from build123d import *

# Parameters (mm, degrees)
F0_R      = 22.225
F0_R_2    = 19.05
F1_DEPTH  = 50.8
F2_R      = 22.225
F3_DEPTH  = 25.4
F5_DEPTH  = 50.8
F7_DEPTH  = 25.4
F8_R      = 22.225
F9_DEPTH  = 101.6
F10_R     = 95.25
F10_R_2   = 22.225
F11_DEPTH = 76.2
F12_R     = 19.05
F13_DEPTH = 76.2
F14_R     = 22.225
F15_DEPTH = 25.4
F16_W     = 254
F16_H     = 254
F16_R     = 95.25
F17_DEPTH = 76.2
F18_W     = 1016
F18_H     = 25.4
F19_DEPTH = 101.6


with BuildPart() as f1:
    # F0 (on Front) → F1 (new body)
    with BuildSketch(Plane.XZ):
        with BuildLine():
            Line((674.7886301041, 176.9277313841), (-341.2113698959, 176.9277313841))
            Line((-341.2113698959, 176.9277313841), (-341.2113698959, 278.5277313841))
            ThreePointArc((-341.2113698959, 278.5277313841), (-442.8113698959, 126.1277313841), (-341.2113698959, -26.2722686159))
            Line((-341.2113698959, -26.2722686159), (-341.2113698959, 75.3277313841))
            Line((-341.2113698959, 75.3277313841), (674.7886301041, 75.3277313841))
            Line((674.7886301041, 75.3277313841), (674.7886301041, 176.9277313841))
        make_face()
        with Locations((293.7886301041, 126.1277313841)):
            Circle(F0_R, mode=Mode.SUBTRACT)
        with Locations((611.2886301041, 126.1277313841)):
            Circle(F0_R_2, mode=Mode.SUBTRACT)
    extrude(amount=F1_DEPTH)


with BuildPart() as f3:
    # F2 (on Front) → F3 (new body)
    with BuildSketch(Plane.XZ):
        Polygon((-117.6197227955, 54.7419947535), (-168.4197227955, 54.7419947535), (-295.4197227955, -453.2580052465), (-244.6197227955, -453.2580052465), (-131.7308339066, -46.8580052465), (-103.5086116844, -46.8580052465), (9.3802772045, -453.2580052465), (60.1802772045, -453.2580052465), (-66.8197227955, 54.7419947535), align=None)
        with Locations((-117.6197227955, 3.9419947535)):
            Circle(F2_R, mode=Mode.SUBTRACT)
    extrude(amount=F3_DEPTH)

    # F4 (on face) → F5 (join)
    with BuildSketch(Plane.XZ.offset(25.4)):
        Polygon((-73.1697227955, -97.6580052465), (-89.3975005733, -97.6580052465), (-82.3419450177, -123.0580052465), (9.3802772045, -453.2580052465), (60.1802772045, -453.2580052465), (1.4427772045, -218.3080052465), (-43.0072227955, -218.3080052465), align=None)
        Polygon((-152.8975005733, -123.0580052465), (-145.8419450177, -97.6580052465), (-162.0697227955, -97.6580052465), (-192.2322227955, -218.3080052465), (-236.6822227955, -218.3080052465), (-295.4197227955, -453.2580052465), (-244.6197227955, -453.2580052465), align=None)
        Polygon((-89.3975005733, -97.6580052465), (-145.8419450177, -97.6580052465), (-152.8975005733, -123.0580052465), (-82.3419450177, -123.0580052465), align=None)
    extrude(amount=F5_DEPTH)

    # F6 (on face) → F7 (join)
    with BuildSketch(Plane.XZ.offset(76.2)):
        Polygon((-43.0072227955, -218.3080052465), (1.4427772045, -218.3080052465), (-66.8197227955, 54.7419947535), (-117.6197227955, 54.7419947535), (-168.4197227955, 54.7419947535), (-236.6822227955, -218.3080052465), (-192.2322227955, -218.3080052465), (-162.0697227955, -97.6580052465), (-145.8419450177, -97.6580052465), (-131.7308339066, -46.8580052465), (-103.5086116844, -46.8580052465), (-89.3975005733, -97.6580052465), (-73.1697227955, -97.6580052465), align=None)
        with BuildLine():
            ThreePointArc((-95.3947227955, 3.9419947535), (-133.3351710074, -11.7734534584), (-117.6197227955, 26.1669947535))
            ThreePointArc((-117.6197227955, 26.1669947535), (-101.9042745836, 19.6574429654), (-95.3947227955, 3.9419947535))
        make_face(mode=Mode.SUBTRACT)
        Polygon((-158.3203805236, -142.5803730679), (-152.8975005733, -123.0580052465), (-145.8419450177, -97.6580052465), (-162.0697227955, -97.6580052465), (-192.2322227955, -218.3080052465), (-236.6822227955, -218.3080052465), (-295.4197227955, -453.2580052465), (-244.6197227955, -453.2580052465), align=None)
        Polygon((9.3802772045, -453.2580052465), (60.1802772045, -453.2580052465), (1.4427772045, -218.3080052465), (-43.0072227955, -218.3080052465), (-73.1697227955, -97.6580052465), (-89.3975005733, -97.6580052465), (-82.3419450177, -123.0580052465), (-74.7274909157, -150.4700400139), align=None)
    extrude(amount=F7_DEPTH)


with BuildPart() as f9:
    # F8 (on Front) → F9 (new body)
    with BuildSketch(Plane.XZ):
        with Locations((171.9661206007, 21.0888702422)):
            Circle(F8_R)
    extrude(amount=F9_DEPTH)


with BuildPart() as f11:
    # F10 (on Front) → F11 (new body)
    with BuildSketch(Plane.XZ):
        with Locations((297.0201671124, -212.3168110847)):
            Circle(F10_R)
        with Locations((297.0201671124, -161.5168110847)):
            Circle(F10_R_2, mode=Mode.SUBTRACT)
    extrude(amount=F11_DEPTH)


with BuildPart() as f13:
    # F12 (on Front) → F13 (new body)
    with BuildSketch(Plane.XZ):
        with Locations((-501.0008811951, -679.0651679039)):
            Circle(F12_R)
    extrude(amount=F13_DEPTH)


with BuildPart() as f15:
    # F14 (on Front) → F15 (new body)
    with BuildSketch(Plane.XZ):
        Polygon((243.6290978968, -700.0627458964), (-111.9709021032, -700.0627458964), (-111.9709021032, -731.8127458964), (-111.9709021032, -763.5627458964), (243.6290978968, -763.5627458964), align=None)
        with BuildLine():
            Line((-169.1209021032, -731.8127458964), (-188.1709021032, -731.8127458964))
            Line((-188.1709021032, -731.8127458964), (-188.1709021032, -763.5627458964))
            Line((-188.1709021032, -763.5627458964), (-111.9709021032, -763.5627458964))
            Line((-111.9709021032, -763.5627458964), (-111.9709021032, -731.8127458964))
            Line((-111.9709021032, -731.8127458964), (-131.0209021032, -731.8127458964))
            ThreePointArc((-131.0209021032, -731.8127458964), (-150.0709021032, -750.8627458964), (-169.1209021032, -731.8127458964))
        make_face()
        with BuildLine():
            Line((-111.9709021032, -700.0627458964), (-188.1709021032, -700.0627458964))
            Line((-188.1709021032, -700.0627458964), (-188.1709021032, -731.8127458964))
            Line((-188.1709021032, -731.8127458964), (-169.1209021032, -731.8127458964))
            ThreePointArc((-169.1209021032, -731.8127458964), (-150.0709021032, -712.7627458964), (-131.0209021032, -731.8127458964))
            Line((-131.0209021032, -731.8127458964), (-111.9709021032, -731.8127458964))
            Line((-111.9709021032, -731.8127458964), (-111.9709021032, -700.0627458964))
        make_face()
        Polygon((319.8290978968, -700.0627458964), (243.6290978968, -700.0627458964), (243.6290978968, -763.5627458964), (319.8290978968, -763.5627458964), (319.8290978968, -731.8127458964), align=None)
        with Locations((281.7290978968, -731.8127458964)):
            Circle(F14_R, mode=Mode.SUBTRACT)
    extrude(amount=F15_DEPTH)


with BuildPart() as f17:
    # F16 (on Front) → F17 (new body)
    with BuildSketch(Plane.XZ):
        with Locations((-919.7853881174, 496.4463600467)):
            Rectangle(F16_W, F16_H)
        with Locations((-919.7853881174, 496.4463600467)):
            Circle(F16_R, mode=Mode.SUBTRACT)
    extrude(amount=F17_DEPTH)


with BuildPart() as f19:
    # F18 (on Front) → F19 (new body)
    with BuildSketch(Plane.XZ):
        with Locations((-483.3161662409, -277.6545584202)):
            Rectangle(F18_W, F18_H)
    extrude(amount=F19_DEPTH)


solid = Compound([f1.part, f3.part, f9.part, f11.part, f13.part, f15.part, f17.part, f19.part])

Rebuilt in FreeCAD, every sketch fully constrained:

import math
import FreeCAD as App
import Part
import Sketcher
from FreeCAD import Vector
Q = App.Units.Quantity


def add_polygon(sketch, points):
    """Adds a closed chain of lines whose ends are joined by coincident constraints."""
    first, n = sketch.GeometryCount, len(points)
    for a, b in zip(points, points[1:] + points[:1]):
        sketch.addGeometry(Part.LineSegment(App.Vector(*a, 0), App.Vector(*b, 0)), False)
    for i in range(n):
        sketch.addConstraint(Sketcher.Constraint("Coincident", first + i, 2, first + (i + 1) % n, 1))

doc = App.newDocument("Part")
body = doc.addObject("PartDesign::Body", "Body")

# Sketch on XZ plane
sketch1 = body.newObject("Sketcher::SketchObject", "Sketch")
sketch1.AttachmentSupport = (doc.getObject("XZ_Plane"), [""])
sketch1.MapMode = "FlatFace"
sketch1.addGeometry(Part.LineSegment(Vector(675, 177, 0), Vector(-341, 177, 0)), False)
sketch1.addGeometry(Part.LineSegment(Vector(-341, 177, 0), Vector(-341, 279, 0)), False)
sketch1.addGeometry(Part.ArcOfCircle(Part.Circle(Vector(-278, 126, 0), Vector(0, 0, 1), 165), math.radians(113), math.radians(247)), False)
sketch1.addGeometry(Part.LineSegment(Vector(-341, -26, 0), Vector(-341, 75, 0)), False)
sketch1.addGeometry(Part.LineSegment(Vector(-341, 75, 0), Vector(675, 75, 0)), False)
sketch1.addGeometry(Part.LineSegment(Vector(675, 75, 0), Vector(675, 177, 0)), False)
sketch1.addGeometry(Part.Circle(Vector(294, 126, 0), Vector(0, 0, 1), 22), False)
sketch1.addGeometry(Part.Circle(Vector(611, 126, 0), Vector(0, 0, 1), 19), False)
sketch1.addConstraint(Sketcher.Constraint("Coincident", 0, 2, 1, 1))
sketch1.addConstraint(Sketcher.Constraint("Coincident", 1, 2, 2, 1))
sketch1.addConstraint(Sketcher.Constraint("Coincident", 2, 2, 3, 1))
sketch1.addConstraint(Sketcher.Constraint("Coincident", 3, 2, 4, 1))
sketch1.addConstraint(Sketcher.Constraint("Coincident", 4, 2, 5, 1))
sketch1.addConstraint(Sketcher.Constraint("Coincident", 5, 2, 0, 1))
sketch1.addConstraint(Sketcher.Constraint("Horizontal", 0))
sketch1.addConstraint(Sketcher.Constraint("Vertical", 1))
sketch1.addConstraint(Sketcher.Constraint("Vertical", 3))
sketch1.addConstraint(Sketcher.Constraint("Horizontal", 4))
sketch1.addConstraint(Sketcher.Constraint("Vertical", 5))
sketch1.addConstraint(Sketcher.Constraint("Horizontal", 2, 3, 6, 3))
sketch1.addConstraint(Sketcher.Constraint("Horizontal", 6, 3, 7, 3))
sketch1.addConstraint(Sketcher.Constraint("Vertical", 1, 2, 2, 2))
sketch1.addConstraint(Sketcher.Constraint("Equal", 1, 3))
sketch1.addConstraint(Sketcher.Constraint("Equal", 3, 5))
sketch1.addConstraint(Sketcher.Constraint("Diameter", 7, Q("1.5 in")))
sketch1.addConstraint(Sketcher.Constraint("Radius", 2, Q("6.5 in")))
sketch1.addConstraint(Sketcher.Constraint("Diameter", 6, Q("1.75 in")))
sketch1.addConstraint(Sketcher.Constraint("DistanceX", 0, 2, 0, 1, Q("40 in")))
sketch1.addConstraint(Sketcher.Constraint("DistanceY", 1, 1, 1, 2, Q("4 in")))
sketch1.addConstraint(Sketcher.Constraint("DistanceX", 2, 3, 7, 3, Q("35 in")))
sketch1.addConstraint(Sketcher.Constraint("DistanceX", 0, 2, 6, 3, Q("25 in")))
sketch1.addConstraint(Sketcher.Constraint("DistanceX", 2, 3, -1, 1, Q("277.71137 mm")))
sketch1.addConstraint(Sketcher.Constraint("DistanceY", -1, 1, 2, 3, Q("126.127731 mm")))
pad1 = body.newObject("PartDesign::Pad", "Pad")
pad1.Profile = sketch1
pad1.Length = Q("2 in")
body2 = doc.addObject("PartDesign::Body", "Body001")

# Sketch on XZ plane
sketch2 = body2.newObject("Sketcher::SketchObject", "Sketch001")
sketch2.AttachmentSupport = (doc.getObject("XZ_Plane001"), [""])
sketch2.MapMode = "FlatFace"
add_polygon(sketch2, [(-168, 55), (-295, -453), (-245, -453), (-132, -47), (-104, -47), (9, -453), (60, -453), (-67, 55)])  # lines 0-7
sketch2.addGeometry(Part.Circle(Vector(-118, 4, 0), Vector(0, 0, 1), 22), False)  # 8
sketch2.addConstraint(Sketcher.Constraint("Horizontal", 1))
sketch2.addConstraint(Sketcher.Constraint("Horizontal", 3))
sketch2.addConstraint(Sketcher.Constraint("Horizontal", 5))
sketch2.addConstraint(Sketcher.Constraint("Horizontal", 7))
sketch2.addConstraint(Sketcher.Constraint("Horizontal", 1, 2, 4, 2))
sketch2.addConstraint(Sketcher.Constraint("Equal", 1, 5))
sketch2.addConstraint(Sketcher.Constraint("Equal", 2, 4))
sketch2.addConstraint(Sketcher.Constraint("Equal", 0, 6))
sketch2.addConstraint(Sketcher.Constraint("Diameter", 8, Q("1.75 in")))
sketch2.addConstraint(Sketcher.Constraint("DistanceX", 1, 1, 1, 2, Q("2 in")))
sketch2.addConstraint(Sketcher.Constraint("DistanceX", 7, 2, 7, 1, Q("4 in")))
sketch2.addConstraint(Sketcher.Constraint("DistanceX", 0, 2, 8, 3, Q("7 in")))
sketch2.addConstraint(Sketcher.Constraint("DistanceY", 0, 2, 8, 3, Q("18 in")))
sketch2.addConstraint(Sketcher.Constraint("DistanceY", 2, 2, 8, 3, Q("2 in")))
sketch2.addConstraint(Sketcher.Constraint("DistanceX", 1, 2, 4, 2, Q("10 in")))
sketch2.addConstraint(Sketcher.Constraint("DistanceY", 8, 3, 6, 2, Q("2 in")))
sketch2.addConstraint(Sketcher.Constraint("DistanceX", 3, 1, 3, 2, Q("28.222222 mm")))
sketch2.addConstraint(Sketcher.Constraint("DistanceX", 3, 2, -1, 1, Q("103.508612 mm")))
sketch2.addConstraint(Sketcher.Constraint("DistanceY", -1, 1, 8, 3, Q("3.941995 mm")))
pad2 = body2.newObject("PartDesign::Pad", "Pad001")
pad2.Profile = sketch2
pad2.Length = Q("1 in")

# Sketch on XZ plane
sketch3 = body2.newObject("Sketcher::SketchObject", "Sketch002")
sketch3.AttachmentSupport = (doc.getObject("XZ_Plane001"), [""])
sketch3.MapMode = "FlatFace"
sketch3.AttachmentOffset = App.Placement(Vector(0, 0, 1 * 25.4), App.Rotation())
add_polygon(sketch3, [(-73, -98), (-162, -98), (-192, -218), (-237, -218), (-295, -453), (-245, -453), (-153, -123), (-82, -123), (9, -453), (60, -453), (1, -218), (-43, -218)])  # lines 0-11
sketch3.addConstraint(Sketcher.Constraint("Horizontal", 0))
sketch3.addConstraint(Sketcher.Constraint("Horizontal", 2))
sketch3.addConstraint(Sketcher.Constraint("Horizontal", 4))
sketch3.addConstraint(Sketcher.Constraint("Horizontal", 6))
sketch3.addConstraint(Sketcher.Constraint("Horizontal", 8))
sketch3.addConstraint(Sketcher.Constraint("Horizontal", 10))
sketch3.addConstraint(Sketcher.Constraint("Parallel", 1, 3))
sketch3.addConstraint(Sketcher.Constraint("Parallel", 9, 11))
sketch3.addConstraint(Sketcher.Constraint("Horizontal", 4, 2, 7, 2))
sketch3.addConstraint(Sketcher.Constraint("Horizontal", 2, 2, 9, 2))
sketch3.addConstraint(Sketcher.Constraint("Equal", 4, 8))
sketch3.addConstraint(Sketcher.Constraint("Equal", 2, 10))
sketch3.addConstraint(Sketcher.Constraint("Equal", 5, 7))
sketch3.addConstraint(Sketcher.Constraint("Equal", 3, 9))
sketch3.addConstraint(Sketcher.Constraint("DistanceX", 4, 1, 4, 2, Q("2 in")))
sketch3.addConstraint(Sketcher.Constraint("DistanceX", 0, 2, 0, 1, Q("3.5 in")))
sketch3.addConstraint(Sketcher.Constraint("DistanceY", 3, 2, 0, 2, Q("14 in")))
sketch3.addConstraint(Sketcher.Constraint("DistanceY", 5, 2, 0, 2, Q("1 in")))
sketch3.addConstraint(Sketcher.Constraint("DistanceX", 4, 2, 7, 2, Q("10 in")))
sketch3.addConstraint(Sketcher.Constraint("DistanceX", 2, 2, 2, 1, Q("1.75 in")))
sketch3.addConstraint(Sketcher.Constraint("DistanceY", 1, 2, 0, 2, Q("4.75 in")))
sketch3.addConstraint(Sketcher.Constraint("DistanceX", 5, 2, -1, 1, Q("152.897501 mm")))
sketch3.addConstraint(Sketcher.Constraint("DistanceX", 6, 1, 6, 2, Q("70.555556 mm")))
sketch3.addConstraint(Sketcher.Constraint("DistanceY", 0, 2, -1, 1, Q("97.658005 mm")))
pad3 = body2.newObject("PartDesign::Pad", "Pad002")
pad3.Profile = sketch3
pad3.Length = Q("2 in")

# Sketch on XZ plane
sketch4 = body2.newObject("Sketcher::SketchObject", "Sketch003")
sketch4.AttachmentSupport = (doc.getObject("XZ_Plane001"), [""])
sketch4.MapMode = "FlatFace"
sketch4.AttachmentOffset = App.Placement(Vector(0, 0, 3 * 25.4), App.Rotation())
add_polygon(sketch4, [(-67, 55), (-168, 55), (-295, -453), (-245, -453), (-158, -143), (-153, -123), (-146, -98), (-132, -47), (-104, -47), (-89, -98), (-82, -123), (-75, -150), (9, -453), (60, -453)])  # lines 0-13
sketch4.addGeometry(Part.ArcOfCircle(Part.Circle(Vector(-118, 4, 0), Vector(0, 0, 1), 22), math.radians(0), math.radians(90)), False)  # 14
sketch4.addGeometry(Part.ArcOfCircle(Part.Circle(Vector(-118, 4, 0), Vector(0, 0, 1), 22), math.radians(90), math.radians(360)), False)  # 15
sketch4.addConstraint(Sketcher.Constraint("Tangent", 14, 1, 15, 2))
sketch4.addConstraint(Sketcher.Constraint("Coincident", 15, 1, 14, 2))
sketch4.addConstraint(Sketcher.Constraint("Horizontal", 0))
sketch4.addConstraint(Sketcher.Constraint("Horizontal", 2))
sketch4.addConstraint(Sketcher.Constraint("Horizontal", 7))
sketch4.addConstraint(Sketcher.Constraint("Horizontal", 12))
sketch4.addConstraint(Sketcher.Constraint("Parallel", 3, 4))
sketch4.addConstraint(Sketcher.Constraint("Parallel", 4, 5))
sketch4.addConstraint(Sketcher.Constraint("Parallel", 5, 6))
sketch4.addConstraint(Sketcher.Constraint("Parallel", 8, 9))
sketch4.addConstraint(Sketcher.Constraint("Parallel", 9, 10))
sketch4.addConstraint(Sketcher.Constraint("Parallel", 10, 11))
sketch4.addConstraint(Sketcher.Constraint("Horizontal", 5, 2, 8, 2))
sketch4.addConstraint(Sketcher.Constraint("Horizontal", 4, 2, 9, 2))
sketch4.addConstraint(Sketcher.Constraint("Horizontal", 2, 2, 11, 2))
sketch4.addConstraint(Sketcher.Constraint("Horizontal", 15, 3, 14, 1))
sketch4.addConstraint(Sketcher.Constraint("Vertical", 14, 3, 15, 1))
sketch4.addConstraint(Sketcher.Constraint("Equal", 2, 12))
sketch4.addConstraint(Sketcher.Constraint("Equal", 6, 8))
sketch4.addConstraint(Sketcher.Constraint("Equal", 1, 13))
sketch4.addConstraint(Sketcher.Constraint("DistanceX", 0, 2, 0, 1, Q("4 in")))
sketch4.addConstraint(Sketcher.Constraint("DistanceX", 2, 1, 2, 2, Q("2 in")))
sketch4.addConstraint(Sketcher.Constraint("Radius", 14, Q("0.875 in")))
sketch4.addConstraint(Sketcher.Constraint("DistanceX", 0, 2, 14, 3, Q("2 in")))
sketch4.addConstraint(Sketcher.Constraint("DistanceY", 14, 3, 0, 2, Q("2 in")))
sketch4.addConstraint(Sketcher.Constraint("DistanceX", 1, 2, 15, 3, Q("7 in")))
sketch4.addConstraint(Sketcher.Constraint("DistanceY", 1, 2, 15, 3, Q("18 in")))
sketch4.addConstraint(Sketcher.Constraint("DistanceY", 4, 2, 15, 3, Q("5 in")))
sketch4.addConstraint(Sketcher.Constraint("DistanceY", 4, 2, 5, 2, Q("1 in")))
sketch4.addConstraint(Sketcher.Constraint("DistanceY", 6, 2, 15, 3, Q("2 in")))
sketch4.addConstraint(Sketcher.Constraint("DistanceX", 4, 2, 8, 2, Q("2.5 in")))
sketch4.addConstraint(Sketcher.Constraint("DistanceX", 4, 2, -1, 1, Q("152.897501 mm")))
sketch4.addConstraint(Sketcher.Constraint("Distance", 4, Q("20.261552 mm")))
sketch4.addConstraint(Sketcher.Constraint("Distance", 10, Q("28.449948 mm")))
sketch4.addConstraint(Sketcher.Constraint("DistanceY", 10, 2, -1, 1, Q("150.47004 mm")))
pad4 = body2.newObject("PartDesign::Pad", "Pad003")
pad4.Profile = sketch4
pad4.Length = Q("1 in")
body3 = doc.addObject("PartDesign::Body", "Body002")

# Sketch on XZ plane
sketch5 = body3.newObject("Sketcher::SketchObject", "Sketch004")
sketch5.AttachmentSupport = (doc.getObject("XZ_Plane002"), [""])
sketch5.MapMode = "FlatFace"
sketch5.addGeometry(Part.Circle(Vector(172, 21, 0), Vector(0, 0, 1), 22), False)
sketch5.addConstraint(Sketcher.Constraint("Diameter", 0, Q("1.75 in")))
sketch5.addConstraint(Sketcher.Constraint("DistanceX", -1, 1, 0, 3, Q("171.966121 mm")))
sketch5.addConstraint(Sketcher.Constraint("DistanceY", -1, 1, 0, 3, Q("21.08887 mm")))
pad5 = body3.newObject("PartDesign::Pad", "Pad004")
pad5.Profile = sketch5
pad5.Length = Q("4 in")
body4 = doc.addObject("PartDesign::Body", "Body003")

# Sketch on XZ plane
sketch6 = body4.newObject("Sketcher::SketchObject", "Sketch005")
sketch6.AttachmentSupport = (doc.getObject("XZ_Plane003"), [""])
sketch6.MapMode = "FlatFace"
sketch6.addGeometry(Part.Circle(Vector(297, -212, 0), Vector(0, 0, 1), 95), False)
sketch6.addGeometry(Part.Circle(Vector(297, -162, 0), Vector(0, 0, 1), 22), False)
sketch6.addConstraint(Sketcher.Constraint("Vertical", 0, 3, 1, 3))
sketch6.addConstraint(Sketcher.Constraint("Diameter", 0, Q("7.5 in")))
sketch6.addConstraint(Sketcher.Constraint("Diameter", 1, Q("1.75 in")))
sketch6.addConstraint(Sketcher.Constraint("DistanceY", 0, 3, 1, 3, Q("2 in")))
sketch6.addConstraint(Sketcher.Constraint("DistanceY", 0, 3, -1, 1, Q("212.316811 mm")))
sketch6.addConstraint(Sketcher.Constraint("DistanceX", -1, 1, 0, 3, Q("297.020167 mm")))
pad6 = body4.newObject("PartDesign::Pad", "Pad005")
pad6.Profile = sketch6
pad6.Length = Q("3 in")
body5 = doc.addObject("PartDesign::Body", "Body004")

# Sketch on XZ plane
sketch7 = body5.newObject("Sketcher::SketchObject", "Sketch006")
sketch7.AttachmentSupport = (doc.getObject("XZ_Plane004"), [""])
sketch7.MapMode = "FlatFace"
sketch7.addGeometry(Part.Circle(Vector(-501, -679, 0), Vector(0, 0, 1), 19), False)
sketch7.addConstraint(Sketcher.Constraint("Diameter", 0, Q("1.5 in")))
sketch7.addConstraint(Sketcher.Constraint("DistanceX", 0, 3, -1, 1, Q("501.000881 mm")))
sketch7.addConstraint(Sketcher.Constraint("DistanceY", 0, 3, -1, 1, Q("679.065168 mm")))
pad7 = body5.newObject("PartDesign::Pad", "Pad006")
pad7.Profile = sketch7
pad7.Length = Q("3 in")
body6 = doc.addObject("PartDesign::Body", "Body005")

# Sketch on XZ plane
sketch8 = body6.newObject("Sketcher::SketchObject", "Sketch007")
sketch8.AttachmentSupport = (doc.getObject("XZ_Plane005"), [""])
sketch8.MapMode = "FlatFace"
add_polygon(sketch8, [(-188, -700), (-188, -764), (320, -764), (320, -700)])  # lines 0-3
sketch8.addGeometry(Part.Circle(Vector(-150, -732, 0), Vector(0, 0, 1), 19), False)  # 4
sketch8.addGeometry(Part.Circle(Vector(282, -732, 0), Vector(0, 0, 1), 22), False)  # 5
sketch8.addConstraint(Sketcher.Constraint("Vertical", 0))
sketch8.addConstraint(Sketcher.Constraint("Horizontal", 1))
sketch8.addConstraint(Sketcher.Constraint("Vertical", 2))
sketch8.addConstraint(Sketcher.Constraint("Horizontal", 3))
sketch8.addConstraint(Sketcher.Constraint("Horizontal", 4, 3, 5, 3))
sketch8.addConstraint(Sketcher.Constraint("Diameter", 4, Q("1.5 in")))
sketch8.addConstraint(Sketcher.Constraint("Diameter", 5, Q("1.75 in")))
sketch8.addConstraint(Sketcher.Constraint("DistanceX", 1, 1, 1, 2, Q("20 in")))
sketch8.addConstraint(Sketcher.Constraint("DistanceY", 0, 2, 0, 1, Q("2.5 in")))
sketch8.addConstraint(Sketcher.Constraint("DistanceX", 4, 3, 5, 3, Q("17 in")))
sketch8.addConstraint(Sketcher.Constraint("DistanceX", 0, 2, 4, 3, Q("1.5 in")))
sketch8.addConstraint(Sketcher.Constraint("DistanceY", 0, 2, 4, 3, Q("1.25 in")))
sketch8.addConstraint(Sketcher.Constraint("DistanceX", 4, 3, -1, 1, Q("150.070902 mm")))
sketch8.addConstraint(Sketcher.Constraint("DistanceY", 4, 3, -1, 1, Q("731.812746 mm")))
pad8 = body6.newObject("PartDesign::Pad", "Pad007")
pad8.Profile = sketch8
pad8.Length = Q("1 in")
body7 = doc.addObject("PartDesign::Body", "Body006")

# Sketch on XZ plane
sketch9 = body7.newObject("Sketcher::SketchObject", "Sketch008")
sketch9.AttachmentSupport = (doc.getObject("XZ_Plane006"), [""])
sketch9.MapMode = "FlatFace"
add_polygon(sketch9, [(-1047, 623), (-1047, 369), (-793, 369), (-793, 623)])  # lines 0-3
sketch9.addGeometry(Part.Circle(Vector(-920, 496, 0), Vector(0, 0, 1), 95), False)  # 4
sketch9.addConstraint(Sketcher.Constraint("Vertical", 0))
sketch9.addConstraint(Sketcher.Constraint("Horizontal", 1))
sketch9.addConstraint(Sketcher.Constraint("Vertical", 2))
sketch9.addConstraint(Sketcher.Constraint("Horizontal", 3))
sketch9.addConstraint(Sketcher.Constraint("Equal", 3, 0))
sketch9.addConstraint(Sketcher.Constraint("Diameter", 4, Q("7.5 in")))
sketch9.addConstraint(Sketcher.Constraint("DistanceX", 1, 1, 1, 2, Q("10 in")))
sketch9.addConstraint(Sketcher.Constraint("DistanceX", 0, 2, 4, 3, Q("5 in")))
sketch9.addConstraint(Sketcher.Constraint("DistanceY", 0, 2, 4, 3, Q("5 in")))
sketch9.addConstraint(Sketcher.Constraint("DistanceX", 4, 3, -1, 1, Q("919.785388 mm")))
sketch9.addConstraint(Sketcher.Constraint("DistanceY", -1, 1, 4, 3, Q("496.44636 mm")))
pad9 = body7.newObject("PartDesign::Pad", "Pad008")
pad9.Profile = sketch9
pad9.Length = Q("3 in")
body8 = doc.addObject("PartDesign::Body", "Body007")

# Sketch on XZ plane
sketch10 = body8.newObject("Sketcher::SketchObject", "Sketch009")
sketch10.AttachmentSupport = (doc.getObject("XZ_Plane007"), [""])
sketch10.MapMode = "FlatFace"
add_polygon(sketch10, [(-991, -265), (-991, -290), (25, -290), (25, -265)])  # lines 0-3
sketch10.addConstraint(Sketcher.Constraint("Vertical", 0))
sketch10.addConstraint(Sketcher.Constraint("Horizontal", 1))
sketch10.addConstraint(Sketcher.Constraint("Vertical", 2))
sketch10.addConstraint(Sketcher.Constraint("Horizontal", 3))
sketch10.addConstraint(Sketcher.Constraint("DistanceX", 1, 1, 1, 2, Q("40 in")))
sketch10.addConstraint(Sketcher.Constraint("DistanceY", 0, 2, 0, 1, Q("1 in")))
sketch10.addConstraint(Sketcher.Constraint("DistanceY", 0, 2, -1, 1, Q("290.354558 mm")))
sketch10.addConstraint(Sketcher.Constraint("DistanceX", 0, 2, -1, 1, Q("991.316166 mm")))
pad10 = body8.newObject("PartDesign::Pad", "Pad009")
pad10.Profile = sketch10
pad10.Length = Q("4 in")

doc.recompute()
